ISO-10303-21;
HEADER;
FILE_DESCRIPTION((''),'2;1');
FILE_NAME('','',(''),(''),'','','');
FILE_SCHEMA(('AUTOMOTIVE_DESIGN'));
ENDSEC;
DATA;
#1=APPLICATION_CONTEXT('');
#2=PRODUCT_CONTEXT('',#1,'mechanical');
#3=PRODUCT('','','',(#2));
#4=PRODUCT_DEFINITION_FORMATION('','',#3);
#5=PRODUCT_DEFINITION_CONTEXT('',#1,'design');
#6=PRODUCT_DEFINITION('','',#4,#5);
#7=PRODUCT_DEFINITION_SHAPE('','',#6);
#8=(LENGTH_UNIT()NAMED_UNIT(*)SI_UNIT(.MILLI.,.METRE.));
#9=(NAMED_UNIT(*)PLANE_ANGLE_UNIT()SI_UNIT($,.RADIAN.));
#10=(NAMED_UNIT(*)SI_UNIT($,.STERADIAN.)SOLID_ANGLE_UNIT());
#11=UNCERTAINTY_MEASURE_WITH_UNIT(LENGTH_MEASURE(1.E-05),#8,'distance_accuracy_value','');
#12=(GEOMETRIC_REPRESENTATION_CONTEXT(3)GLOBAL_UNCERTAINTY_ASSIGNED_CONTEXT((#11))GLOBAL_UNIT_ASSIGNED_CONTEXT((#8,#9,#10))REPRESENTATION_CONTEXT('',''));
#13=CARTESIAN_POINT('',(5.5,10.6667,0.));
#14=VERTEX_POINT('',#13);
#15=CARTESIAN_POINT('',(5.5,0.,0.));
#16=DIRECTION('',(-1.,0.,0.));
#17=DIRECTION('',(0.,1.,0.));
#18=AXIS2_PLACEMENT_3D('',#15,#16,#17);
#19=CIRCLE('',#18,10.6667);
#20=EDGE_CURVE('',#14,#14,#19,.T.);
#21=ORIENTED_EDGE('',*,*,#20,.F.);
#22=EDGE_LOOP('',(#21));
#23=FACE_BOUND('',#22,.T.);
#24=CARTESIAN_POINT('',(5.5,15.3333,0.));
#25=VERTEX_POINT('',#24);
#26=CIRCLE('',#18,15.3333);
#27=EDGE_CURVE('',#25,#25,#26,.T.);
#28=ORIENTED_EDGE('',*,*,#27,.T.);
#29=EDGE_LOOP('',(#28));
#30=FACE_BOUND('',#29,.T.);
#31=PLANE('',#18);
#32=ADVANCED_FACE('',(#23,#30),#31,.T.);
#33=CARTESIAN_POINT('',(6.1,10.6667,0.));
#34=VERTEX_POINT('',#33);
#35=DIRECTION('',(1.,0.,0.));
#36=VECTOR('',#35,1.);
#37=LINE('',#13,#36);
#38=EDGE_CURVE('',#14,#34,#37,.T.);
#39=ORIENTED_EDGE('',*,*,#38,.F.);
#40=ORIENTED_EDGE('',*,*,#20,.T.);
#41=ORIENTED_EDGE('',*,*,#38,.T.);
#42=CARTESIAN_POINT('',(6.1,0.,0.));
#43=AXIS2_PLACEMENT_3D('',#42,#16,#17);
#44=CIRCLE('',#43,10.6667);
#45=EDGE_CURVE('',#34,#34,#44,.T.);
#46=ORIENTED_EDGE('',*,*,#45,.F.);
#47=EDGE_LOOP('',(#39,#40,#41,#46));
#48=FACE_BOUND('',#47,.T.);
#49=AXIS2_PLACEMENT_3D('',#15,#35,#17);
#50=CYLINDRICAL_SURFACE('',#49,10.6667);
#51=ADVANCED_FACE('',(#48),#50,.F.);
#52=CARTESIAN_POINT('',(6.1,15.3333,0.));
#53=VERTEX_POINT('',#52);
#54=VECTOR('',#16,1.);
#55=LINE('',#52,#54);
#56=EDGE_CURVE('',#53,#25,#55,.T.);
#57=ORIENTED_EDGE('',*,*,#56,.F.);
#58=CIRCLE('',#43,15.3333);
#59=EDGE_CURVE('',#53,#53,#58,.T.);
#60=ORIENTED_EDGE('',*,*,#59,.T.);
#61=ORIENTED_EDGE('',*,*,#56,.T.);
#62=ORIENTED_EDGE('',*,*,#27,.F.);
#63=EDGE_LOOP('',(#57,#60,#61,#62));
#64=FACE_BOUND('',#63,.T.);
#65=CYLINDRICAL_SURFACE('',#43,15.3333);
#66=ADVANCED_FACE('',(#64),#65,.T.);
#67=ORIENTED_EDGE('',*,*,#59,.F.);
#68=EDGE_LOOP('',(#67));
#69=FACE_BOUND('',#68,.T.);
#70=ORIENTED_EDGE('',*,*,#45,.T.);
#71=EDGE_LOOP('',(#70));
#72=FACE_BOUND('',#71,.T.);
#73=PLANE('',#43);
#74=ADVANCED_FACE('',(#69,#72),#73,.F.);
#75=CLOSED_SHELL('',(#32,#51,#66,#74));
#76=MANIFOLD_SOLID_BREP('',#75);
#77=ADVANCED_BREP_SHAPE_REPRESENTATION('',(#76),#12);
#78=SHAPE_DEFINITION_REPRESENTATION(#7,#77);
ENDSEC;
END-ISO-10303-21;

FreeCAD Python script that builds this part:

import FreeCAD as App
import Part
import Sketcher
from FreeCAD import Vector

doc = App.newDocument("Part")
body = doc.addObject("PartDesign::Body", "Body")

# Sketch on XY plane
sketch1 = body.newObject("Sketcher::SketchObject", "Sketch")
sketch1.AttachmentSupport = (doc.getObject("XY_Plane"), [""])
sketch1.MapMode = "FlatFace"
sketch1.addGeometry(Part.LineSegment(Vector(6.1, 15.3, 0), Vector(5.5, 15.3, 0)), False)
sketch1.addGeometry(Part.LineSegment(Vector(5.5, 15.3, 0), Vector(5.5, 10.7, 0)), False)
sketch1.addGeometry(Part.LineSegment(Vector(5.5, 10.7, 0), Vector(6.1, 10.7, 0)), False)
sketch1.addGeometry(Part.LineSegment(Vector(6.1, 10.7, 0), Vector(6.1, 15.3, 0)), False)
sketch1.addConstraint(Sketcher.Constraint("Coincident", 0, 2, 1, 1))
sketch1.addConstraint(Sketcher.Constraint("Coincident", 1, 2, 2, 1))
sketch1.addConstraint(Sketcher.Constraint("Coincident", 2, 2, 3, 1))
sketch1.addConstraint(Sketcher.Constraint("Coincident", 3, 2, 0, 1))
sketch1.addConstraint(Sketcher.Constraint("Horizontal", 0))
sketch1.addConstraint(Sketcher.Constraint("Vertical", 1))
sketch1.addConstraint(Sketcher.Constraint("Horizontal", 2))
sketch1.addConstraint(Sketcher.Constraint("Vertical", 3))
sketch1.addConstraint(Sketcher.Constraint("DistanceX", 0, 2, 0, 1, 0.6))
sketch1.addConstraint(Sketcher.Constraint("DistanceX", -1, 1, 0, 2, 5.5))
sketch1.addConstraint(Sketcher.Constraint("DistanceY", 1, 2, 1, 1, 4.6666))
sketch1.addConstraint(Sketcher.Constraint("DistanceY", -1, 1, 0, 2, 15.3333))
revolution = body.newObject("PartDesign::Revolution", "Revolution")
revolution.Profile = sketch1
revolution.ReferenceAxis = (sketch1, ["H_Axis"])
revolution.Angle = 360

doc.recompute()
